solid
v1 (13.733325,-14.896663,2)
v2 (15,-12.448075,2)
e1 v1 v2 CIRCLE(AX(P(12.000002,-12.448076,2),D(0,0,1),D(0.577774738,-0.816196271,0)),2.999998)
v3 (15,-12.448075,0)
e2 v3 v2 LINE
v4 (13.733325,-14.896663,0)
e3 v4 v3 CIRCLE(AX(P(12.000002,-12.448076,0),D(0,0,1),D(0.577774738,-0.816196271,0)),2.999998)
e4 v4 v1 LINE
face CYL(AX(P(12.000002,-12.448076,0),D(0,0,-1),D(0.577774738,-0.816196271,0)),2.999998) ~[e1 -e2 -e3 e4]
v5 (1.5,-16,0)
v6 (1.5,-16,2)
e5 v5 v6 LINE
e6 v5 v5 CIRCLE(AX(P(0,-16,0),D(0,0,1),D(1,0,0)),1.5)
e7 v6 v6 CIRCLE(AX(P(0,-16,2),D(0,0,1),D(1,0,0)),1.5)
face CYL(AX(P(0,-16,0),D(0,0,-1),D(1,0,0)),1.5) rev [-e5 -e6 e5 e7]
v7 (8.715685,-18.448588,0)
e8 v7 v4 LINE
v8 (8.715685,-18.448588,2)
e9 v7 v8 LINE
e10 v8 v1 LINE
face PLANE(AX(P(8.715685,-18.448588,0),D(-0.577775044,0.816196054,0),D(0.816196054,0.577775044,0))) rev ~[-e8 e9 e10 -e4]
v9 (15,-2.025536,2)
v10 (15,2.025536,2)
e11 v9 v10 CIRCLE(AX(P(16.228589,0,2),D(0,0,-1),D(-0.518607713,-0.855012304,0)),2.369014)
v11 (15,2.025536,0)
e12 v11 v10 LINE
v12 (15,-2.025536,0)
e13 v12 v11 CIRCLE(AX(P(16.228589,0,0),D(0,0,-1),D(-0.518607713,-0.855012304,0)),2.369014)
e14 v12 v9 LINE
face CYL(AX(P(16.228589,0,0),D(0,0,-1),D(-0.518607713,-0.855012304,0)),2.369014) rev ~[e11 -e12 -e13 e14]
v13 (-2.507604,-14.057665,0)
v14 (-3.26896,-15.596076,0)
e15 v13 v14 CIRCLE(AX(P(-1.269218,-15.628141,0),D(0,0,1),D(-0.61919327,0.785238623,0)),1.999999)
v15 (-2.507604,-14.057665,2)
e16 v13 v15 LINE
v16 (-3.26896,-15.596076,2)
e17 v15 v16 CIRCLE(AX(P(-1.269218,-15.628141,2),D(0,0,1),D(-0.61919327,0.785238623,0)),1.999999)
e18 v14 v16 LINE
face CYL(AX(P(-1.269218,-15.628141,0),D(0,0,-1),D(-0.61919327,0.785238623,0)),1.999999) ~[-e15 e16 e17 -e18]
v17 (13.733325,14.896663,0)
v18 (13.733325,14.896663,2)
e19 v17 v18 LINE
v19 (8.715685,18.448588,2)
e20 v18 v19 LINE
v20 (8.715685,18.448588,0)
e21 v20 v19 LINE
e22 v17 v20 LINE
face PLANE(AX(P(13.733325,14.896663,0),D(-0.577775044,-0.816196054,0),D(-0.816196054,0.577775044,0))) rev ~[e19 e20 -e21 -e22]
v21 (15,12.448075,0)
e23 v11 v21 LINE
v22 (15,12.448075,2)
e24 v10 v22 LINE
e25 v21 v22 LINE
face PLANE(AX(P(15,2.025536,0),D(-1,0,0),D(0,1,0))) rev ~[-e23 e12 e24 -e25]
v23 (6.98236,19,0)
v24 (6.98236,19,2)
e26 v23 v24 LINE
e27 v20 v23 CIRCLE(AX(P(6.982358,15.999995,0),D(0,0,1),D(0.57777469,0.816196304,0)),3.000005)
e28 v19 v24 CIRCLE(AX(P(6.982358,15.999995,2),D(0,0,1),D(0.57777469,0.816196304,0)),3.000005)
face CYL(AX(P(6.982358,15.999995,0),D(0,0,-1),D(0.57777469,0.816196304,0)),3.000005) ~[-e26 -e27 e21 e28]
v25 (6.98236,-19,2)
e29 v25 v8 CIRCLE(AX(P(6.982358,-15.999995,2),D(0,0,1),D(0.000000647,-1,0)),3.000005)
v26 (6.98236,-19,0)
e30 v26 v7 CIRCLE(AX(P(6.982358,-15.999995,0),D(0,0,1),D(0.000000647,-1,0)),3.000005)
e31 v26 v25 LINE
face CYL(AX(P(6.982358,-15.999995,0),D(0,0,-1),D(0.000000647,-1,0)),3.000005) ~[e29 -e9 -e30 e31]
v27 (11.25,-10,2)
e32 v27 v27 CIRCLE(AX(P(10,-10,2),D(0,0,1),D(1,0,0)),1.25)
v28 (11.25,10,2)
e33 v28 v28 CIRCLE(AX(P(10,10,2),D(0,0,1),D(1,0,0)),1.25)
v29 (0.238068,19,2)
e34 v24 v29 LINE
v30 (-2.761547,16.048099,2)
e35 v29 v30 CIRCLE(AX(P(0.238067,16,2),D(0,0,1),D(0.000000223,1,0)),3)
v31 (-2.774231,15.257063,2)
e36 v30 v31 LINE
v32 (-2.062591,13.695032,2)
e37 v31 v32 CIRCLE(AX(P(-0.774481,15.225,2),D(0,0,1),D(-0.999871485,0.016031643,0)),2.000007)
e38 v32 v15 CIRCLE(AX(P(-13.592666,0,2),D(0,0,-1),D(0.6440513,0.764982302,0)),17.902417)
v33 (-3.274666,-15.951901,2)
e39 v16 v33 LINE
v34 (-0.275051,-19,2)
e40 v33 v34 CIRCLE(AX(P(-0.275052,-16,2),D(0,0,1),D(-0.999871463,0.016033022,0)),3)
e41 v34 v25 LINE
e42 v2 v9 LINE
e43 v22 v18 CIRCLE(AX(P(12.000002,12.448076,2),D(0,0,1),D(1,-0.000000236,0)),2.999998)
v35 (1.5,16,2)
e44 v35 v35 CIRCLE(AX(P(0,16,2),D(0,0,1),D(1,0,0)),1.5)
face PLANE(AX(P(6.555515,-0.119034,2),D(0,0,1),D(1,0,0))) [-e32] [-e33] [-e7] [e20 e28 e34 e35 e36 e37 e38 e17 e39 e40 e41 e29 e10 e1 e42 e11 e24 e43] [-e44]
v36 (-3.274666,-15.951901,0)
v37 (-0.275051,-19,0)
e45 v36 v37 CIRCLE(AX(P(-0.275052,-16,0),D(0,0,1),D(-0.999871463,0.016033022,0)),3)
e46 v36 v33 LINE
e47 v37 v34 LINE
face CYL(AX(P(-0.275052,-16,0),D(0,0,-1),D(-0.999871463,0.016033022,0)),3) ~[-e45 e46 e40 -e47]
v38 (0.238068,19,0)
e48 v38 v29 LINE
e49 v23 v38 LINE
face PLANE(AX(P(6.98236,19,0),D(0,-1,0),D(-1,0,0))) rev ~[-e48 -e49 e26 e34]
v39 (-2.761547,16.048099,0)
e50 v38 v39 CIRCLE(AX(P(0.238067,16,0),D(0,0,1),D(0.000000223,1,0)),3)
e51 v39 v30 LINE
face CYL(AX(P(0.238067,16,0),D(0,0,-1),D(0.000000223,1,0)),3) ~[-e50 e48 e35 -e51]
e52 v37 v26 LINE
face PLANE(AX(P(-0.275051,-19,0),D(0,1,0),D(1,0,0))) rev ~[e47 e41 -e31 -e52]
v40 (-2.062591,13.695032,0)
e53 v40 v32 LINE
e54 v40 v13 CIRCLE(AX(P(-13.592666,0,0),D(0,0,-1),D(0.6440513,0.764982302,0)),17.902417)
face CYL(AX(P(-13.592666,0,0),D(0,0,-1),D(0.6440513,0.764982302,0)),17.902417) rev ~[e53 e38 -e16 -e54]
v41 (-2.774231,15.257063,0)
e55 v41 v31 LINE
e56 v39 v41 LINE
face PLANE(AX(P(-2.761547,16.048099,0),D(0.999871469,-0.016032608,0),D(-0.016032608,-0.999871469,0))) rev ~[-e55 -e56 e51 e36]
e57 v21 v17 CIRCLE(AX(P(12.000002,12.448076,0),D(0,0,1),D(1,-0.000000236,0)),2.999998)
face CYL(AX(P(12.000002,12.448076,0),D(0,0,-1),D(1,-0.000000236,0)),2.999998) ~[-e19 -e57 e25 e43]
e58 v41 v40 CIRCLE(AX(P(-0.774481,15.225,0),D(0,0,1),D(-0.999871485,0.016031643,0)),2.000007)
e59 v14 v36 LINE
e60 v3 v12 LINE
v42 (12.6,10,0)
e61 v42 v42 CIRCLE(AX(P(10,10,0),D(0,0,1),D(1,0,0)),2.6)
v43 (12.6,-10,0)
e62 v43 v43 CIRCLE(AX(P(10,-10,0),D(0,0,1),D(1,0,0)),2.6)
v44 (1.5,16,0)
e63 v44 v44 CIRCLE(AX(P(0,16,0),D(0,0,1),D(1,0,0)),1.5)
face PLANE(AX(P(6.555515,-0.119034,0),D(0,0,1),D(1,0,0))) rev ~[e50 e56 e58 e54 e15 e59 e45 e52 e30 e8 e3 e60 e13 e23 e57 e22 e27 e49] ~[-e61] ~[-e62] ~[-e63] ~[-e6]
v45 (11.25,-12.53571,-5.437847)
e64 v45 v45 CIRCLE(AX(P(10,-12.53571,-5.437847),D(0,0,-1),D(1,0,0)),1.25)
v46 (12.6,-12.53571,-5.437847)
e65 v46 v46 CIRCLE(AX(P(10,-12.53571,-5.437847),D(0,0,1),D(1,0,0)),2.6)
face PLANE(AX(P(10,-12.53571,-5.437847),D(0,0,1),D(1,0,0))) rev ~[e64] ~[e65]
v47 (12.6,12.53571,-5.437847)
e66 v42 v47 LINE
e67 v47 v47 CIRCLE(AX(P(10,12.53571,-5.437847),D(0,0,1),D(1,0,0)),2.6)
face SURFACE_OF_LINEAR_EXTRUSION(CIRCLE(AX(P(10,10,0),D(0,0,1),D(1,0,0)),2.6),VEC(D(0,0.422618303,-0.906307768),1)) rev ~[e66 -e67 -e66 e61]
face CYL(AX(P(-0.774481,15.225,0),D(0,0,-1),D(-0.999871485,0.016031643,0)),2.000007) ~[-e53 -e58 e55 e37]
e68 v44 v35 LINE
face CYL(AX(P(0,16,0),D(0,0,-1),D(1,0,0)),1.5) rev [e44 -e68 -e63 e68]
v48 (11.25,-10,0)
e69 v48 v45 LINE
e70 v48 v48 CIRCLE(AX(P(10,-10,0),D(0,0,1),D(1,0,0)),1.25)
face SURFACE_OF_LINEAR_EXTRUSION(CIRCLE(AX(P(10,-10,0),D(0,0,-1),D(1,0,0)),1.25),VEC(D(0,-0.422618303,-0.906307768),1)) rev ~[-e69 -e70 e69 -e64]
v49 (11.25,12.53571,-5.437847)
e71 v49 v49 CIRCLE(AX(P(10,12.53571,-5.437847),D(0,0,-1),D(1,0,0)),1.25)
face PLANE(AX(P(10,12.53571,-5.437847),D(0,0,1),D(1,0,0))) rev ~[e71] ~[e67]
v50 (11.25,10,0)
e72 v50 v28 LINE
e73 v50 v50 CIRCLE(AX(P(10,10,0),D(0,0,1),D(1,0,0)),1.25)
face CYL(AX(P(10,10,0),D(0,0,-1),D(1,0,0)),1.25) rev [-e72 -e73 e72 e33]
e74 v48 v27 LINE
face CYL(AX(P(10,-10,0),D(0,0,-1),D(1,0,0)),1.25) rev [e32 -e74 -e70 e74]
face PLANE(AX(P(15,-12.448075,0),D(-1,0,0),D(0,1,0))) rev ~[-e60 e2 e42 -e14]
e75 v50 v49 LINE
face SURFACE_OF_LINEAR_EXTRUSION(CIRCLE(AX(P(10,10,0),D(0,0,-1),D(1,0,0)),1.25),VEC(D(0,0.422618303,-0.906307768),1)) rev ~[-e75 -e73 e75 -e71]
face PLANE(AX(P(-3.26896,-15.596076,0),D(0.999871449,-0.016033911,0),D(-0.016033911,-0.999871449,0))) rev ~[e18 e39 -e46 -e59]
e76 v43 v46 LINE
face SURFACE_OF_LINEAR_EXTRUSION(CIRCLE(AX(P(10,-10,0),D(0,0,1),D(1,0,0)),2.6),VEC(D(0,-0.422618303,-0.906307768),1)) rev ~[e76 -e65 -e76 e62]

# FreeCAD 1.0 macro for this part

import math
import FreeCAD as App
import Part
import Sketcher
Q = App.Units.Quantity

doc = App.newDocument("Part")
body = doc.addObject("PartDesign::Body", "Body")

sketch1 = body.newObject("Sketcher::SketchObject", "Sketch")
sketch1.AttachmentSupport = (doc.getObject("XY_Plane"), [""])
sketch1.MapMode = "FlatFace"
sketch1.addGeometry([
    Part.ArcOfCircle(Part.Circle(App.Vector(12, -12.45, 0), App.Vector(0, 0, 1), 3), math.radians(-55), math.radians(0)),
    Part.LineSegment(App.Vector(15, -12.45, 0), App.Vector(15, -2.03, 0)),
    Part.ArcOfCircle(Part.Circle(App.Vector(16.23, 0, 0), App.Vector(0, 0, 1), 2.37), math.radians(121), math.radians(239)),
    Part.LineSegment(App.Vector(15, 2.03, 0), App.Vector(15, 12.45, 0)),
    Part.ArcOfCircle(Part.Circle(App.Vector(12, 12.45, 0), App.Vector(0, 0, 1), 3), math.radians(0), math.radians(55)),
    Part.LineSegment(App.Vector(13.73, 14.9, 0), App.Vector(8.72, 18.45, 0)),
    Part.ArcOfCircle(Part.Circle(App.Vector(6.98, 16, 0), App.Vector(0, 0, 1), 3), math.radians(55), math.radians(90)),
    Part.LineSegment(App.Vector(6.98, 19, 0), App.Vector(0.24, 19, 0)),
    Part.ArcOfCircle(Part.Circle(App.Vector(0.24, 16, 0), App.Vector(0, 0, 1), 3), math.radians(90), math.radians(179)),
    Part.LineSegment(App.Vector(-2.76, 16.05, 0), App.Vector(-2.77, 15.26, 0)),
    Part.ArcOfCircle(Part.Circle(App.Vector(-0.77, 15.22, 0), App.Vector(0, 0, 1), 2), math.radians(179), math.radians(230)),
    Part.ArcOfCircle(Part.Circle(App.Vector(-13.59, 0, 0), App.Vector(0, 0, 1), 17.9), math.radians(-52), math.radians(50)),
    Part.ArcOfCircle(Part.Circle(App.Vector(-1.27, -15.63, 0), App.Vector(0, 0, 1), 2), math.radians(128), math.radians(179)),
    Part.LineSegment(App.Vector(-3.27, -15.6, 0), App.Vector(-3.27, -15.95, 0)),
    Part.ArcOfCircle(Part.Circle(App.Vector(-0.28, -16, 0), App.Vector(0, 0, 1), 3), math.radians(179), math.radians(270)),
    Part.LineSegment(App.Vector(-0.28, -19, 0), App.Vector(6.98, -19, 0)),
    Part.ArcOfCircle(Part.Circle(App.Vector(6.98, -16, 0), App.Vector(0, 0, 1), 3), math.radians(-90), math.radians(-55)),
    Part.LineSegment(App.Vector(8.72, -18.45, 0), App.Vector(13.73, -14.9, 0)),
    Part.Circle(App.Vector(0, -16, 0), App.Vector(0, 0, 1), 1.5),
    Part.Circle(App.Vector(10, -10, 0), App.Vector(0, 0, 1), 1.25),
    Part.Circle(App.Vector(0, 16, 0), App.Vector(0, 0, 1), 1.5),
    Part.Circle(App.Vector(10, 10, 0), App.Vector(0, 0, 1), 1.25),
], False)
sketch1.addConstraint([
    Sketcher.Constraint("Tangent", 0, 2, 1, 1),
    Sketcher.Constraint("Coincident", 1, 2, 2, 2),
    Sketcher.Constraint("Coincident", 2, 1, 3, 1),
    Sketcher.Constraint("Tangent", 3, 2, 4, 1),
    Sketcher.Constraint("Tangent", 4, 2, 5, 1),
    Sketcher.Constraint("Tangent", 5, 2, 6, 1),
    Sketcher.Constraint("Tangent", 6, 2, 7, 1),
    Sketcher.Constraint("Tangent", 7, 2, 8, 1),
    Sketcher.Constraint("Tangent", 8, 2, 9, 1),
    Sketcher.Constraint("Tangent", 9, 2, 10, 1),
    Sketcher.Constraint("Tangent", 10, 2, 11, 2),
    Sketcher.Constraint("Tangent", 11, 1, 12, 1),
    Sketcher.Constraint("Tangent", 12, 2, 13, 1),
    Sketcher.Constraint("Tangent", 13, 2, 14, 1),
    Sketcher.Constraint("Tangent", 14, 2, 15, 1),
    Sketcher.Constraint("Tangent", 15, 2, 16, 1),
    Sketcher.Constraint("Tangent", 16, 2, 17, 1),
    Sketcher.Constraint("Tangent", 17, 2, 0, 1),
    Sketcher.Constraint("Vertical", 1),
    Sketcher.Constraint("Vertical", 3),
    Sketcher.Constraint("Horizontal", 7),
    Sketcher.Constraint("Horizontal", 15),
    Sketcher.Constraint("Equal", 0, 4),
    Sketcher.Constraint("Equal", 4, 8),
    Sketcher.Constraint("Equal", 8, 14),
    Sketcher.Constraint("Equal", 6, 16),
    Sketcher.Constraint("Equal", 18, 20),
    Sketcher.Constraint("Equal", 19, 21),
    Sketcher.Constraint("Symmetric", 18, 3, 20, 3, -1, 1),
    Sketcher.Constraint("Symmetric", 0, 3, 4, 3, -1),
    Sketcher.Constraint("Symmetric", 6, 3, 16, 3, -1),
    Sketcher.Constraint("Symmetric", 19, 3, 21, 3, -1),
    Sketcher.Constraint("PointOnObject", 2, 3, -1),
    Sketcher.Constraint("PointOnObject", 11, 3, -1),
    Sketcher.Constraint("PointOnObject", 18, 3, -2),
    Sketcher.Constraint("Parallel", 9, 13),
    Sketcher.Constraint("Horizontal", 14, 3, 18, 3),
    Sketcher.Constraint("Diameter", 18, Q("3 mm")),
    Sketcher.Constraint("Radius", 0, Q("2.999998 mm")),
    Sketcher.Constraint("Radius", 12, Q("1.999999 mm")),
    Sketcher.Constraint("Diameter", 19, Q("2.5 mm")),
    Sketcher.Constraint("DistanceX", -1, 1, 0, 3, Q("12.000002 mm")),
    Sketcher.Constraint("DistanceY", -1, 1, 8, 3, Q("16 mm")),
    Sketcher.Constraint("DistanceX", -1, 1, 19, 3, Q("10 mm")),
    Sketcher.Constraint("DistanceY", 19, 3, -1, 1, Q("10 mm")),
    Sketcher.Constraint("DistanceY", -1, 1, 10, 3, Q("15.225 mm")),
    Sketcher.Constraint("Radius", 2, Q("2.369014 mm")),
    Sketcher.Constraint("Radius", 6, Q("3.000005 mm")),
    Sketcher.Constraint("Radius", 10, Q("2.000007 mm")),
    Sketcher.Constraint("Radius", 11, Q("17.902417 mm")),
    Sketcher.Constraint("DistanceX", 7, 2, 7, 1, Q("6.744292 mm")),
    Sketcher.Constraint("DistanceX", 15, 1, 15, 2, Q("7.257411 mm")),
    Sketcher.Constraint("DistanceY", 1, 1, 1, 2, Q("10.422539 mm")),
    Sketcher.Constraint("DistanceY", -1, 1, 8, 2, Q("16.048099 mm")),
    Sketcher.Constraint("Distance", 5, Q("6.147592 mm")),
    Sketcher.Constraint("DistanceX", -1, 1, 2, 3, Q("16.228589 mm")),
])
pad1 = body.newObject("PartDesign::Pad", "Pad")
pad1.Profile = sketch1
pad1.Length = 2

sketch2 = body.newObject("Sketcher::SketchObject", "Sketch001")
sketch2.AttachmentSupport = (doc.getObject("XY_Plane"), [""])
sketch2.MapMode = "FlatFace"
sketch2.addGeometry([
    Part.Circle(App.Vector(10, -10, 0), App.Vector(0, 0, 1), 2.6),
    Part.Circle(App.Vector(10, -10, 0), App.Vector(0, 0, 1), 1.2),
], False)
sketch2.addConstraint([
    Sketcher.Constraint("Coincident", 1, 3, 0, 3),
    Sketcher.Constraint("Diameter", 0, Q("5.2 mm")),
    Sketcher.Constraint("Diameter", 1, Q("2.5 mm")),
    Sketcher.Constraint("DistanceX", -1, 1, 0, 3, Q("10 mm")),
    Sketcher.Constraint("DistanceY", 0, 3, -1, 1, Q("10 mm")),
])

sketch3 = body.newObject("Sketcher::SketchObject", "Sketch002")
sketch3.Placement = App.Placement(App.Vector(0, -6.021969, 2.80809), App.Rotation(App.Vector(0, 0.422618303, 0.906307768), App.Vector(1, 0, 0), App.Vector(0, 0.906307768, -0.422618303), "ZXY"))
sketch3.addGeometry(Part.LineSegment(App.Vector(-3, 10, 0), App.Vector(-9, 10, 0)), False)
sketch3.addConstraint([
    Sketcher.Constraint("Horizontal", 0),
    Sketcher.Constraint("DistanceX", 0, 2, 0, 1, Q("6 mm")),
    Sketcher.Constraint("DistanceY", -1, 1, 0, 1, Q("10 mm")),
    Sketcher.Constraint("DistanceX", 0, 1, -1, 1, Q("3.098385 mm")),
])
doc.recompute()

additivepipe = body.newObject("PartDesign::AdditivePipe", "AdditivePipe")
additivepipe.Profile = sketch2
additivepipe.Spine = (sketch3, ["Edge1"])

sketch4 = body.newObject("Sketcher::SketchObject", "Sketch003")
sketch4.AttachmentSupport = (doc.getObject("XY_Plane"), [""])
sketch4.MapMode = "FlatFace"
sketch4.addGeometry([
    Part.Circle(App.Vector(10, 10, 0), App.Vector(0, 0, 1), 2.6),
    Part.Circle(App.Vector(10, 10, 0), App.Vector(0, 0, 1), 1.2),
], False)
sketch4.addConstraint([
    Sketcher.Constraint("Coincident", 1, 3, 0, 3),
    Sketcher.Constraint("Diameter", 0, Q("5.2 mm")),
    Sketcher.Constraint("Diameter", 1, Q("2.5 mm")),
    Sketcher.Constraint("DistanceX", -1, 1, 0, 3, Q("10 mm")),
    Sketcher.Constraint("DistanceY", -1, 1, 0, 3, Q("10 mm")),
])

sketch5 = body.newObject("Sketcher::SketchObject", "Sketch004")
sketch5.Placement = App.Placement(App.Vector(0, 6.085852, 2.83788), App.Rotation(App.Vector(0, -0.422618303, 0.906307768), App.Vector(1, 0, 0), App.Vector(0, 0.906307768, 0.422618303), "ZXY"))
sketch5.addGeometry(Part.LineSegment(App.Vector(-3, 10, 0), App.Vector(-9, 10, 0)), False)
sketch5.addConstraint([
    Sketcher.Constraint("Horizontal", 0),
    Sketcher.Constraint("DistanceX", 0, 2, 0, 1, Q("6 mm")),
    Sketcher.Constraint("DistanceY", -1, 1, 0, 1, Q("10 mm")),
    Sketcher.Constraint("DistanceX", 0, 1, -1, 1, Q("3.131254 mm")),
])
doc.recompute()

additivepipe2 = body.newObject("PartDesign::AdditivePipe", "AdditivePipe001")
additivepipe2.Profile = sketch4
additivepipe2.Spine = (sketch5, ["Edge1"])

doc.recompute()
